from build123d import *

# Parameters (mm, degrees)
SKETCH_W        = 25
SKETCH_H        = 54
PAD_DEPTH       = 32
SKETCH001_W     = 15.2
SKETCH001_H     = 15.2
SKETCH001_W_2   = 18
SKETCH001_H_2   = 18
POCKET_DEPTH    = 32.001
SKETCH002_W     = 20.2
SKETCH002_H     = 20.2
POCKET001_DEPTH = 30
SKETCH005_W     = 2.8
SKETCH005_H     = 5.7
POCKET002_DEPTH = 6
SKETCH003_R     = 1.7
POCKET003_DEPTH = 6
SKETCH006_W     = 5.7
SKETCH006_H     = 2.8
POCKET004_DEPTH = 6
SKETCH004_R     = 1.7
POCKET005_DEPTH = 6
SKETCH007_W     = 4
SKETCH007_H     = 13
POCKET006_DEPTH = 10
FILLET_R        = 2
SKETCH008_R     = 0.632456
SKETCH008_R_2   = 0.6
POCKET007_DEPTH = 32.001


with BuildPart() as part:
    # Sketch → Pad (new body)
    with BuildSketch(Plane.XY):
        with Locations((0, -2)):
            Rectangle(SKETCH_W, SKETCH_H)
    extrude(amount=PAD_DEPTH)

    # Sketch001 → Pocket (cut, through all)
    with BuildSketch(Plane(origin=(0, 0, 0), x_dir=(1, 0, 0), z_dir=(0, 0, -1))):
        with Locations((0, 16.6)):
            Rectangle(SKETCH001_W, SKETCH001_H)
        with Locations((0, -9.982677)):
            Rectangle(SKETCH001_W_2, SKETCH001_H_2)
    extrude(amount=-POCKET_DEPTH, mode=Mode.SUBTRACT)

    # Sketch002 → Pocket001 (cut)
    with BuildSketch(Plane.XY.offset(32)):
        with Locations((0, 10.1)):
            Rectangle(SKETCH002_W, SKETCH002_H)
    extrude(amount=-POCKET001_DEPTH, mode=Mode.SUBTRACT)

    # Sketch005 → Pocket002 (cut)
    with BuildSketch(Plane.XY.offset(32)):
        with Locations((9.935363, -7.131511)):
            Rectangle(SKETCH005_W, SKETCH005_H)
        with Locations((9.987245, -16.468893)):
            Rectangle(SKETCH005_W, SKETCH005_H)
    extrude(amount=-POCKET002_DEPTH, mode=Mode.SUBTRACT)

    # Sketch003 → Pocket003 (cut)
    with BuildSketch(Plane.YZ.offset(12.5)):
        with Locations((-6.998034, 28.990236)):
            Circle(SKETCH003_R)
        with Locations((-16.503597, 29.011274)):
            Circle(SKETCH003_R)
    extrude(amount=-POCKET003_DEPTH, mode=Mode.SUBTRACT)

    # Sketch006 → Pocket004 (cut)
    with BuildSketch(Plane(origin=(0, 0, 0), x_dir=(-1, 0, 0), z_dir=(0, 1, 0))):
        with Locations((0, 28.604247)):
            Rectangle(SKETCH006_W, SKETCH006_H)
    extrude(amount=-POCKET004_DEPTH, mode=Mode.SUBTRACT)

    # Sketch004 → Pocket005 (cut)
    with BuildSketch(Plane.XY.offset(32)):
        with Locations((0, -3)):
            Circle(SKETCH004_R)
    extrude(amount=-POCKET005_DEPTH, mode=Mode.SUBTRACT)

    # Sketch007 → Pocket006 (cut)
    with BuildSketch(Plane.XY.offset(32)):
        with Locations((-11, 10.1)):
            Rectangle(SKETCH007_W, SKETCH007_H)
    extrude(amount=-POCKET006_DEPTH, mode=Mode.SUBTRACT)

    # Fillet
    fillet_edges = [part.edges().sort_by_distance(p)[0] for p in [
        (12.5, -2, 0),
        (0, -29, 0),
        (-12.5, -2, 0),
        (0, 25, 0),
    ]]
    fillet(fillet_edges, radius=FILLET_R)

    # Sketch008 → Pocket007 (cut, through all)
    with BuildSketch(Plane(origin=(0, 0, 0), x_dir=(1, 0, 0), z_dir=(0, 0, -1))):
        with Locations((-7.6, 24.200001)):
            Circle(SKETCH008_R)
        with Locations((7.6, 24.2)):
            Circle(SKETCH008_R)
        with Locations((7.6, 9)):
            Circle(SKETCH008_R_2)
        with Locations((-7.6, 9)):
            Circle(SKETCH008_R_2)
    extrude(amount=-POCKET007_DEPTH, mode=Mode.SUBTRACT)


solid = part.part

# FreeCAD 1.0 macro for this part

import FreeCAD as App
import Part
import Sketcher
from FreeCAD import Vector
Q = App.Units.Quantity


def edges_at(feature, points):
    """Names of the edges that pass closest to the given points."""
    edges = feature.Shape.Edges
    near = lambda p: min(range(len(edges)), key=lambda i: edges[i].distToShape(Part.Vertex(*p))[0])
    return sorted({f"Edge{near(p) + 1}" for p in points})


def add_polygon(sketch, points):
    """Adds a closed chain of lines whose ends are joined by coincident constraints."""
    first, n = sketch.GeometryCount, len(points)
    for a, b in zip(points, points[1:] + points[:1]):
        sketch.addGeometry(Part.LineSegment(App.Vector(*a, 0), App.Vector(*b, 0)), False)
    for i in range(n):
        sketch.addConstraint(Sketcher.Constraint("Coincident", first + i, 2, first + (i + 1) % n, 1))

doc = App.newDocument("Part")
body = doc.addObject("PartDesign::Body", "Body")

# Sketch on XY plane
sketch1 = body.newObject("Sketcher::SketchObject", "Sketch")
sketch1.AttachmentSupport = (doc.getObject("XY_Plane"), [""])
sketch1.MapMode = "FlatFace"
add_polygon(sketch1, [(-12.5, 25), (-12.5, -29), (12.5, -29), (12.5, 25)])  # lines 0-3
sketch1.addConstraint(Sketcher.Constraint("Vertical", 0))
sketch1.addConstraint(Sketcher.Constraint("Horizontal", 1))
sketch1.addConstraint(Sketcher.Constraint("Vertical", 2))
sketch1.addConstraint(Sketcher.Constraint("Horizontal", 3))
sketch1.addConstraint(Sketcher.Constraint("DistanceX", 1, 1, 1, 2, Q("25 mm")))
sketch1.addConstraint(Sketcher.Constraint("DistanceY", 0, 2, 0, 1, Q("54 mm")))
sketch1.addConstraint(Sketcher.Constraint("DistanceY", 0, 2, -1, 1, Q("29 mm")))
sketch1.addConstraint(Sketcher.Constraint("DistanceX", 0, 2, -1, 1, Q("12.5 mm")))
pad1 = body.newObject("PartDesign::Pad", "Pad")
pad1.Profile = sketch1
pad1.Length = 32

# Sketch on XY plane
sketch2 = body.newObject("Sketcher::SketchObject", "Sketch001")
sketch2.AttachmentSupport = (doc.getObject("XY_Plane"), [""])
sketch2.MapMode = "FlatFace"
add_polygon(sketch2, [(-7.6, -24.2), (-7.6, -9), (7.6, -9), (7.6, -24.2)])  # lines 0-3
add_polygon(sketch2, [(-9, 0.982677), (-9, 18.982677), (9, 18.982677), (9, 0.982677)])  # lines 4-7
sketch2.addConstraint(Sketcher.Constraint("Vertical", 0))
sketch2.addConstraint(Sketcher.Constraint("Horizontal", 1))
sketch2.addConstraint(Sketcher.Constraint("Vertical", 2))
sketch2.addConstraint(Sketcher.Constraint("Horizontal", 3))
sketch2.addConstraint(Sketcher.Constraint("Vertical", 4))
sketch2.addConstraint(Sketcher.Constraint("Horizontal", 5))
sketch2.addConstraint(Sketcher.Constraint("Vertical", 6))
sketch2.addConstraint(Sketcher.Constraint("Horizontal", 7))
sketch2.addConstraint(Sketcher.Constraint("Equal", 3, 0))
sketch2.addConstraint(Sketcher.Constraint("Equal", 7, 4))
sketch2.addConstraint(Sketcher.Constraint("DistanceX", 5, 1, 5, 2, Q("18 mm")))
sketch2.addConstraint(Sketcher.Constraint("DistanceX", 1, 1, 1, 2, Q("15.2 mm")))
sketch2.addConstraint(Sketcher.Constraint("DistanceY", 0, 2, -1, 1, Q("9 mm")))
sketch2.addConstraint(Sketcher.Constraint("DistanceX", 4, 2, -1, 1, Q("9 mm")))
sketch2.addConstraint(Sketcher.Constraint("DistanceX", 0, 2, -1, 1, Q("7.6 mm")))
sketch2.addConstraint(Sketcher.Constraint("DistanceY", -1, 1, 4, 2, Q("18.982677 mm")))
pocket1 = body.newObject("PartDesign::Pocket", "Pocket")
pocket1.Profile = sketch2
pocket1.Type = "ThroughAll"
pocket1.Reversed = True

# Sketch on XY plane
sketch3 = body.newObject("Sketcher::SketchObject", "Sketch002")
sketch3.AttachmentSupport = (doc.getObject("XY_Plane"), [""])
sketch3.MapMode = "FlatFace"
sketch3.AttachmentOffset = App.Placement(Vector(0, 0, 32), App.Rotation())
add_polygon(sketch3, [(-10.1, 20.2), (-10.1, 0), (10.1, 0), (10.1, 20.2)])  # lines 0-3
sketch3.addConstraint(Sketcher.Constraint("Vertical", 0))
sketch3.addConstraint(Sketcher.Constraint("Horizontal", 1))
sketch3.addConstraint(Sketcher.Constraint("Vertical", 2))
sketch3.addConstraint(Sketcher.Constraint("Horizontal", 3))
sketch3.addConstraint(Sketcher.Constraint("Symmetric", 0, 2, 1, 2, -1, 1))
sketch3.addConstraint(Sketcher.Constraint("Equal", 3, 0))
sketch3.addConstraint(Sketcher.Constraint("DistanceX", 1, 1, 1, 2, Q("20.2 mm")))
pocket2 = body.newObject("PartDesign::Pocket", "Pocket001")
pocket2.Profile = sketch3
pocket2.Length = 30

# Sketch on XY plane
sketch4 = body.newObject("Sketcher::SketchObject", "Sketch003")
sketch4.AttachmentSupport = (doc.getObject("XY_Plane"), [""])
sketch4.MapMode = "FlatFace"
sketch4.AttachmentOffset = App.Placement(Vector(0, 0, 32), App.Rotation())
add_polygon(sketch4, [(8.535363, -4.281511), (8.535363, -9.981511), (11.335363, -9.981511), (11.335363, -4.281511)])  # lines 0-3
add_polygon(sketch4, [(8.587245, -13.618893), (8.587245, -19.318893), (11.387245, -19.318893), (11.387245, -13.618893)])  # lines 4-7
sketch4.addConstraint(Sketcher.Constraint("Vertical", 0))
sketch4.addConstraint(Sketcher.Constraint("Horizontal", 1))
sketch4.addConstraint(Sketcher.Constraint("Vertical", 2))
sketch4.addConstraint(Sketcher.Constraint("Horizontal", 3))
sketch4.addConstraint(Sketcher.Constraint("Vertical", 4))
sketch4.addConstraint(Sketcher.Constraint("Horizontal", 5))
sketch4.addConstraint(Sketcher.Constraint("Vertical", 6))
sketch4.addConstraint(Sketcher.Constraint("Horizontal", 7))
sketch4.addConstraint(Sketcher.Constraint("Equal", 3, 5))
sketch4.addConstraint(Sketcher.Constraint("Equal", 2, 4))
sketch4.addConstraint(Sketcher.Constraint("DistanceX", 1, 1, 1, 2, Q("2.8 mm")))
sketch4.addConstraint(Sketcher.Constraint("DistanceY", 0, 2, 0, 1, Q("5.7 mm")))
sketch4.addConstraint(Sketcher.Constraint("DistanceY", 0, 2, -1, 1, Q("9.981511 mm")))
sketch4.addConstraint(Sketcher.Constraint("DistanceX", 0, 2, 4, 2, Q("0.051882 mm")))
sketch4.addConstraint(Sketcher.Constraint("DistanceY", 4, 2, 3, 2, Q("15.037382 mm")))
sketch4.addConstraint(Sketcher.Constraint("DistanceX", -1, 1, 0, 2, Q("8.535363 mm")))
pocket3 = body.newObject("PartDesign::Pocket", "Pocket002")
pocket3.Profile = sketch4
pocket3.Length = 6

# Sketch on YZ plane
sketch5 = body.newObject("Sketcher::SketchObject", "Sketch004")
sketch5.AttachmentSupport = (doc.getObject("YZ_Plane"), [""])
sketch5.MapMode = "FlatFace"
sketch5.AttachmentOffset = App.Placement(Vector(0, 0, 12.5), App.Rotation())
sketch5.addGeometry(Part.Circle(Vector(-6.998034, 28.990236, 0), Vector(0, 0, 1), 1.7), False)
sketch5.addGeometry(Part.Circle(Vector(-16.503597, 29.011274, 0), Vector(0, 0, 1), 1.7), False)
sketch5.addConstraint(Sketcher.Constraint("Equal", 0, 1))
sketch5.addConstraint(Sketcher.Constraint("Diameter", 0, Q("3.4 mm")))
sketch5.addConstraint(Sketcher.Constraint("DistanceY", 0, 3, 1, 3, Q("0.021038 mm")))
sketch5.addConstraint(Sketcher.Constraint("DistanceX", 0, 3, -1, 1, Q("6.998034 mm")))
sketch5.addConstraint(Sketcher.Constraint("DistanceY", -1, 1, 0, 3, Q("28.990236 mm")))
sketch5.addConstraint(Sketcher.Constraint("DistanceX", 1, 3, -1, 1, Q("16.503597 mm")))
pocket4 = body.newObject("PartDesign::Pocket", "Pocket003")
pocket4.Profile = sketch5
pocket4.Length = 6

# Sketch on XZ plane
sketch6 = body.newObject("Sketcher::SketchObject", "Sketch005")
sketch6.AttachmentSupport = (doc.getObject("XZ_Plane"), [""])
sketch6.MapMode = "FlatFace"
add_polygon(sketch6, [(2.85, 30.004247), (2.85, 27.204247), (-2.85, 27.204247), (-2.85, 30.004247)])  # lines 0-3
sketch6.addConstraint(Sketcher.Constraint("Vertical", 0))
sketch6.addConstraint(Sketcher.Constraint("Horizontal", 1))
sketch6.addConstraint(Sketcher.Constraint("Vertical", 2))
sketch6.addConstraint(Sketcher.Constraint("Horizontal", 3))
sketch6.addConstraint(Sketcher.Constraint("DistanceX", 1, 2, 1, 1, Q("5.7 mm")))
sketch6.addConstraint(Sketcher.Constraint("DistanceY", 0, 2, 0, 1, Q("2.8 mm")))
sketch6.addConstraint(Sketcher.Constraint("DistanceX", -1, 1, 0, 2, Q("2.85 mm")))
sketch6.addConstraint(Sketcher.Constraint("DistanceY", -1, 1, 0, 2, Q("27.204247 mm")))
pocket5 = body.newObject("PartDesign::Pocket", "Pocket004")
pocket5.Profile = sketch6
pocket5.Length = 6
pocket5.Reversed = True

# Sketch on XY plane
sketch7 = body.newObject("Sketcher::SketchObject", "Sketch006")
sketch7.AttachmentSupport = (doc.getObject("XY_Plane"), [""])
sketch7.MapMode = "FlatFace"
sketch7.AttachmentOffset = App.Placement(Vector(0, 0, 32), App.Rotation())
sketch7.addGeometry(Part.Circle(Vector(0, -3, 0), Vector(0, 0, 1), 1.7), False)
sketch7.addConstraint(Sketcher.Constraint("PointOnObject", 0, 3, -2))
sketch7.addConstraint(Sketcher.Constraint("Diameter", 0, Q("3.4 mm")))
sketch7.addConstraint(Sketcher.Constraint("DistanceY", 0, 3, -1, 1, Q("3 mm")))
pocket6 = body.newObject("PartDesign::Pocket", "Pocket005")
pocket6.Profile = sketch7
pocket6.Length = 6

# Sketch on XY plane
sketch8 = body.newObject("Sketcher::SketchObject", "Sketch007")
sketch8.AttachmentSupport = (doc.getObject("XY_Plane"), [""])
sketch8.MapMode = "FlatFace"
sketch8.AttachmentOffset = App.Placement(Vector(0, 0, 32), App.Rotation())
add_polygon(sketch8, [(-13, 16.6), (-13, 3.6), (-9, 3.6), (-9, 16.6)])  # lines 0-3
sketch8.addConstraint(Sketcher.Constraint("Vertical", 0))
sketch8.addConstraint(Sketcher.Constraint("Horizontal", 1))
sketch8.addConstraint(Sketcher.Constraint("Vertical", 2))
sketch8.addConstraint(Sketcher.Constraint("Horizontal", 3))
sketch8.addConstraint(Sketcher.Constraint("DistanceX", 1, 1, 1, 2, Q("4 mm")))
sketch8.addConstraint(Sketcher.Constraint("DistanceY", 0, 2, 0, 1, Q("13 mm")))
sketch8.addConstraint(Sketcher.Constraint("DistanceX", 0, 2, -1, 1, Q("13 mm")))
sketch8.addConstraint(Sketcher.Constraint("DistanceY", -1, 1, 0, 2, Q("3.6 mm")))
pocket7 = body.newObject("PartDesign::Pocket", "Pocket006")
pocket7.Profile = sketch8
pocket7.Length = 10
doc.recompute()

fillet = body.newObject("PartDesign::Fillet", "Fillet")
fillet.Base = (pocket7, edges_at(pocket7, [
    (12.5, -2, 0),
    (0, -29, 0),
    (-12.5, -2, 0),
    (0, 25, 0),
]))
fillet.Radius = 2

# Sketch on XY plane
sketch9 = body.newObject("Sketcher::SketchObject", "Sketch008")
sketch9.AttachmentSupport = (doc.getObject("XY_Plane"), [""])
sketch9.MapMode = "FlatFace"
sketch9.addGeometry(Part.Circle(Vector(-7.6, -24.200001, 0), Vector(0, 0, 1), 0.632456), False)
sketch9.addGeometry(Part.Circle(Vector(7.6, -24.2, 0), Vector(0, 0, 1), 0.632456), False)
sketch9.addGeometry(Part.Circle(Vector(7.6, -9, 0), Vector(0, 0, 1), 0.6), False)
sketch9.addGeometry(Part.Circle(Vector(-7.6, -9, 0), Vector(0, 0, 1), 0.6), False)
sketch9.addConstraint(Sketcher.Constraint("Equal", 0, 1))
sketch9.addConstraint(Sketcher.Constraint("Equal", 2, 3))
sketch9.addConstraint(Sketcher.Constraint("Symmetric", 0, 3, 1, 3, -2))
sketch9.addConstraint(Sketcher.Constraint("Symmetric", 2, 3, 3, 3, -2))
sketch9.addConstraint(Sketcher.Constraint("Vertical", 1, 3, 2, 3))
sketch9.addConstraint(Sketcher.Constraint("Diameter", 2, Q("1.2 mm")))
sketch9.addConstraint(Sketcher.Constraint("DistanceY", 2, 3, -1, 1, Q("9 mm")))
sketch9.addConstraint(Sketcher.Constraint("DistanceX", 0, 3, -1, 1, Q("7.6 mm")))
sketch9.addConstraint(Sketcher.Constraint("DistanceY", 0, 3, -1, 1, Q("24.200001 mm")))
sketch9.addConstraint(Sketcher.Constraint("Diameter", 0, Q("1.264912 mm")))
pocket8 = body.newObject("PartDesign::Pocket", "Pocket007")
pocket8.Profile = sketch9
pocket8.Type = "ThroughAll"
pocket8.Reversed = True

doc.recompute()
